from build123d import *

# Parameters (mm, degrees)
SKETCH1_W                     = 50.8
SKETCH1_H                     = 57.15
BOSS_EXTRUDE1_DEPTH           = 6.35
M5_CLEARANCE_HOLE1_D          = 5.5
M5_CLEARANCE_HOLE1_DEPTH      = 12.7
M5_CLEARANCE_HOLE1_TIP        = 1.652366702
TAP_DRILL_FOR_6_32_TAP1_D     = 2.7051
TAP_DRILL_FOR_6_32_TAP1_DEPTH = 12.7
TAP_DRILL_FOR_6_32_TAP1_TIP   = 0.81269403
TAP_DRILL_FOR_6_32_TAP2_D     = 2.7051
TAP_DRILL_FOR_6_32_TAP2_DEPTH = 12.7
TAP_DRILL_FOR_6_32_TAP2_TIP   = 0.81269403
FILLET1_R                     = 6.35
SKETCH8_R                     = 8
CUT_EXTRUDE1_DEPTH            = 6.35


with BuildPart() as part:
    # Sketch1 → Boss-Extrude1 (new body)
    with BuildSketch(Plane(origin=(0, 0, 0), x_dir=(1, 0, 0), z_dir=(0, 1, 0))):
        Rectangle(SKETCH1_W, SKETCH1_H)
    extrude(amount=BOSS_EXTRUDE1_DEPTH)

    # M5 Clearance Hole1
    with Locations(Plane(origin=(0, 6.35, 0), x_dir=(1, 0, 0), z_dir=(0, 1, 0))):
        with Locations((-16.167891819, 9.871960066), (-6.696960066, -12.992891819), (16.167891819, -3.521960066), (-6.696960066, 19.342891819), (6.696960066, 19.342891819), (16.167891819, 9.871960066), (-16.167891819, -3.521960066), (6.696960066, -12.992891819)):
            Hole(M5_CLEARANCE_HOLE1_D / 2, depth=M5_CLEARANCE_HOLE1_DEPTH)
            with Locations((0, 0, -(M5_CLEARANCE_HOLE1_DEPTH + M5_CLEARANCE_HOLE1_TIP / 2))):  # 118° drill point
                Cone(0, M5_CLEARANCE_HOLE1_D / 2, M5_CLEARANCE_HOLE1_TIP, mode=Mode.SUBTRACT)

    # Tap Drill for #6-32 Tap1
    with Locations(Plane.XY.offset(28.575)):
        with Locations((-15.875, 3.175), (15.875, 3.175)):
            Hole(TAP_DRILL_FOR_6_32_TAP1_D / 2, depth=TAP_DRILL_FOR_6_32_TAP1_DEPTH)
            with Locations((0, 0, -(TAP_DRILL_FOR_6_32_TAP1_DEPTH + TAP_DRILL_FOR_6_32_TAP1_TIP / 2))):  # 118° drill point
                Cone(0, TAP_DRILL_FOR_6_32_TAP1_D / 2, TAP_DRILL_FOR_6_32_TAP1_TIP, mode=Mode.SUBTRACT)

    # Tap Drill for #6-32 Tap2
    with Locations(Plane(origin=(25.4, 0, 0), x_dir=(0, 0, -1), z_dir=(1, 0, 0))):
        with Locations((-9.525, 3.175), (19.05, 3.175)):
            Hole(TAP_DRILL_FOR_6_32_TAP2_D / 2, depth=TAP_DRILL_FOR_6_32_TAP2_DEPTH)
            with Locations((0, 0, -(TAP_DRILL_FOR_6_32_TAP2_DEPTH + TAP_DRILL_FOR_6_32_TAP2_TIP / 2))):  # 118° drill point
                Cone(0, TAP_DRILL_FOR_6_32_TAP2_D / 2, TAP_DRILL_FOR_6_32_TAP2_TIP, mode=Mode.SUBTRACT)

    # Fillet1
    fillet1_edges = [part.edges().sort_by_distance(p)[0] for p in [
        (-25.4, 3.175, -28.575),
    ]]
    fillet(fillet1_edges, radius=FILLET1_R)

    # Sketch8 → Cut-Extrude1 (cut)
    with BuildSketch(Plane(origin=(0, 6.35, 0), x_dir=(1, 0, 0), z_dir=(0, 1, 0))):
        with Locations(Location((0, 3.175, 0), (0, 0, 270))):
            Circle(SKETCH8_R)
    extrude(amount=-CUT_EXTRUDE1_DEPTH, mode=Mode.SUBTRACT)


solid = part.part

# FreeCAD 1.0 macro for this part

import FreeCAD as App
import Part
import Sketcher

V = App.Vector
Q = App.Units.Quantity


def edges_at(feature, points):
    """Names of the edges that pass closest to the given points."""
    edges = feature.Shape.Edges
    near = lambda p: min(range(len(edges)), key=lambda i: edges[i].distToShape(Part.Vertex(*p))[0])
    return sorted({f"Edge{near(p) + 1}" for p in points})

doc = App.newDocument("Part")
body = doc.addObject("PartDesign::Body", "Body")

# Sketch on XZ plane
sketch1 = body.newObject("Sketcher::SketchObject", "Sketch")
sketch1.AttachmentSupport = (doc.getObject("XZ_Plane"), [""])
sketch1.MapMode = "FlatFace"
sketch1.addGeometry([
    Part.LineSegment(V(-25.4, -28.575, 0), V(-25.4, 28.575, 0)),
    Part.LineSegment(V(-25.4, 28.575, 0), V(25.4, 28.575, 0)),
    Part.LineSegment(V(25.4, 28.575, 0), V(25.4, -28.575, 0)),
    Part.LineSegment(V(25.4, -28.575, 0), V(-25.4, -28.575, 0)),
], False)
sketch1.addConstraint([
    Sketcher.Constraint("Coincident", 0, 2, 1, 1),
    Sketcher.Constraint("Coincident", 1, 2, 2, 1),
    Sketcher.Constraint("Coincident", 2, 2, 3, 1),
    Sketcher.Constraint("Coincident", 3, 2, 0, 1),
    Sketcher.Constraint("Vertical", 0),
    Sketcher.Constraint("Horizontal", 1),
    Sketcher.Constraint("Vertical", 2),
    Sketcher.Constraint("Horizontal", 3),
    Sketcher.Constraint("Symmetric", 0, 2, 2, 2, -1, 1),
    Sketcher.Constraint("DistanceX", 1, 1, 1, 2, Q("2 in")),
    Sketcher.Constraint("DistanceY", 0, 1, 0, 2, Q("2.25 in")),
])
pad1 = body.newObject("PartDesign::Pad", "Pad")
pad1.Profile = sketch1
pad1.Length = Q("0.25 in")
pad1.Reversed = True

# Sketch on XZ plane
sketch2 = body.newObject("Sketcher::SketchObject", "Sketch001")
sketch2.AttachmentSupport = (doc.getObject("XZ_Plane"), [""])
sketch2.MapMode = "FlatFace"
sketch2.AttachmentOffset = App.Placement(V(0, 0, -0.25 * 25.4), App.Rotation())
sketch2.addGeometry([
    Part.Circle(V(-16.167892, -9.87196, 0), V(0, 0, 1), 2.75),  # 0
    Part.Circle(V(-6.69696, 12.992892, 0), V(0, 0, 1), 2.75),  # 1
    Part.Circle(V(16.167892, 3.52196, 0), V(0, 0, 1), 2.75),  # 2
    Part.Circle(V(-6.69696, -19.342892, 0), V(0, 0, 1), 2.75),  # 3
    Part.Circle(V(6.69696, -19.342892, 0), V(0, 0, 1), 2.75),  # 4
    Part.Circle(V(16.167892, -9.87196, 0), V(0, 0, 1), 2.75),  # 5
    Part.Circle(V(-16.167892, 3.52196, 0), V(0, 0, 1), 2.75),  # 6
    Part.Circle(V(6.69696, 12.992892, 0), V(0, 0, 1), 2.75),  # 7
], False)
sketch2.addConstraint([
    Sketcher.Constraint("Equal", 0, 1),
    Sketcher.Constraint("Equal", 1, 2),
    Sketcher.Constraint("Equal", 2, 3),
    Sketcher.Constraint("Equal", 3, 4),
    Sketcher.Constraint("Equal", 4, 5),
    Sketcher.Constraint("Equal", 5, 6),
    Sketcher.Constraint("Equal", 6, 7),
    Sketcher.Constraint("Symmetric", 3, 3, 4, 3, -2),
    Sketcher.Constraint("Symmetric", 0, 3, 5, 3, -2),
    Sketcher.Constraint("Symmetric", 2, 3, 6, 3, -2),
    Sketcher.Constraint("Symmetric", 1, 3, 7, 3, -2),
    Sketcher.Constraint("Vertical", 1, 3, 3, 3),
    Sketcher.Constraint("Vertical", 2, 3, 5, 3),
    Sketcher.Constraint("Diameter", 0, 5.5),
    Sketcher.Constraint("DistanceX", 0, 3, -1, 1, 16.167892),
    Sketcher.Constraint("DistanceY", 0, 3, -1, 1, 9.87196),
    Sketcher.Constraint("DistanceX", 1, 3, -1, 1, 6.69696),
    Sketcher.Constraint("DistanceY", -1, 1, 1, 3, 12.992892),
    Sketcher.Constraint("DistanceY", -1, 1, 2, 3, 3.52196),
    Sketcher.Constraint("DistanceY", 3, 3, -1, 1, 19.342892),
])
doc.recompute()
hole = body.newObject("PartDesign::Hole", "Hole")
hole.Profile = sketch2
hole.ThreadType = "None"
hole.Diameter = 5.5
hole.DepthType = "Dimension"
hole.Depth = Q("0.5 in")
hole.DrillPoint = "Angled"
hole.DrillPointAngle = 118
hole.Reversed = True

# Sketch on XY plane
sketch3 = body.newObject("Sketcher::SketchObject", "Sketch002")
sketch3.AttachmentSupport = (doc.getObject("XY_Plane"), [""])
sketch3.MapMode = "FlatFace"
sketch3.AttachmentOffset = App.Placement(V(0, 0, 1.125 * 25.4), App.Rotation())
sketch3.addGeometry([
    Part.Circle(V(-15.875, 3.175, 0), V(0, 0, 1), 1.35255),
    Part.Circle(V(15.875, 3.175, 0), V(0, 0, 1), 1.35255),
], False)
sketch3.addConstraint([
    Sketcher.Constraint("Equal", 0, 1),
    Sketcher.Constraint("Symmetric", 0, 3, 1, 3, -2),
    Sketcher.Constraint("Diameter", 0, Q("0.1065 in")),
    Sketcher.Constraint("DistanceX", 0, 3, 1, 3, Q("1.25 in")),
    Sketcher.Constraint("DistanceY", -1, 1, 0, 3, Q("0.125 in")),
])
doc.recompute()
hole2 = body.newObject("PartDesign::Hole", "Hole001")
hole2.Profile = sketch3
hole2.ThreadType = "None"
hole2.Diameter = Q("0.1065 in")
hole2.DepthType = "Dimension"
hole2.Depth = Q("0.5 in")
hole2.DrillPoint = "Angled"
hole2.DrillPointAngle = 118

# Sketch on YZ plane
sketch4 = body.newObject("Sketcher::SketchObject", "Sketch003")
sketch4.AttachmentSupport = (doc.getObject("YZ_Plane"), [""])
sketch4.MapMode = "FlatFace"
sketch4.AttachmentOffset = App.Placement(V(0, 0, 1 * 25.4), App.Rotation())
sketch4.addGeometry([
    Part.Circle(V(3.175, 9.525, 0), V(0, 0, 1), 1.35255),
    Part.Circle(V(3.175, -19.05, 0), V(0, 0, 1), 1.35255),
], False)
sketch4.addConstraint([
    Sketcher.Constraint("Equal", 0, 1),
    Sketcher.Constraint("Vertical", 0, 3, 1, 3),
    Sketcher.Constraint("Diameter", 0, Q("0.1065 in")),
    Sketcher.Constraint("DistanceY", 1, 3, -1, 1, Q("0.75 in")),
    Sketcher.Constraint("DistanceX", -1, 1, 0, 3, Q("0.125 in")),
    Sketcher.Constraint("DistanceY", -1, 1, 0, 3, Q("0.375 in")),
])
doc.recompute()
hole3 = body.newObject("PartDesign::Hole", "Hole002")
hole3.Profile = sketch4
hole3.ThreadType = "None"
hole3.Diameter = Q("0.1065 in")
hole3.DepthType = "Dimension"
hole3.Depth = Q("0.5 in")
hole3.DrillPoint = "Angled"
hole3.DrillPointAngle = 118
doc.recompute()

fillet = body.newObject("PartDesign::Fillet", "Fillet")
fillet.Base = (hole3, edges_at(hole3, [(-25.4, 3.175, -28.575)]))
fillet.Radius = Q("0.25 in")

# Sketch on XZ plane
sketch5 = body.newObject("Sketcher::SketchObject", "Sketch004")
sketch5.AttachmentSupport = (doc.getObject("XZ_Plane"), [""])
sketch5.MapMode = "FlatFace"
sketch5.AttachmentOffset = App.Placement(V(0, 0, -0.25 * 25.4), App.Rotation())
sketch5.addGeometry(Part.Circle(V(0, -3.175, 0), V(0, 0, 1), 8), False)
sketch5.addConstraint([
    Sketcher.Constraint("PointOnObject", 0, 3, -2),
    Sketcher.Constraint("Diameter", 0, 16.0),
    Sketcher.Constraint("DistanceY", 0, 3, -1, 1, Q("0.125 in")),
])
pocket1 = body.newObject("PartDesign::Pocket", "Pocket")
pocket1.Profile = sketch5
pocket1.Length = Q("0.25 in")
pocket1.Reversed = True

doc.recompute()
